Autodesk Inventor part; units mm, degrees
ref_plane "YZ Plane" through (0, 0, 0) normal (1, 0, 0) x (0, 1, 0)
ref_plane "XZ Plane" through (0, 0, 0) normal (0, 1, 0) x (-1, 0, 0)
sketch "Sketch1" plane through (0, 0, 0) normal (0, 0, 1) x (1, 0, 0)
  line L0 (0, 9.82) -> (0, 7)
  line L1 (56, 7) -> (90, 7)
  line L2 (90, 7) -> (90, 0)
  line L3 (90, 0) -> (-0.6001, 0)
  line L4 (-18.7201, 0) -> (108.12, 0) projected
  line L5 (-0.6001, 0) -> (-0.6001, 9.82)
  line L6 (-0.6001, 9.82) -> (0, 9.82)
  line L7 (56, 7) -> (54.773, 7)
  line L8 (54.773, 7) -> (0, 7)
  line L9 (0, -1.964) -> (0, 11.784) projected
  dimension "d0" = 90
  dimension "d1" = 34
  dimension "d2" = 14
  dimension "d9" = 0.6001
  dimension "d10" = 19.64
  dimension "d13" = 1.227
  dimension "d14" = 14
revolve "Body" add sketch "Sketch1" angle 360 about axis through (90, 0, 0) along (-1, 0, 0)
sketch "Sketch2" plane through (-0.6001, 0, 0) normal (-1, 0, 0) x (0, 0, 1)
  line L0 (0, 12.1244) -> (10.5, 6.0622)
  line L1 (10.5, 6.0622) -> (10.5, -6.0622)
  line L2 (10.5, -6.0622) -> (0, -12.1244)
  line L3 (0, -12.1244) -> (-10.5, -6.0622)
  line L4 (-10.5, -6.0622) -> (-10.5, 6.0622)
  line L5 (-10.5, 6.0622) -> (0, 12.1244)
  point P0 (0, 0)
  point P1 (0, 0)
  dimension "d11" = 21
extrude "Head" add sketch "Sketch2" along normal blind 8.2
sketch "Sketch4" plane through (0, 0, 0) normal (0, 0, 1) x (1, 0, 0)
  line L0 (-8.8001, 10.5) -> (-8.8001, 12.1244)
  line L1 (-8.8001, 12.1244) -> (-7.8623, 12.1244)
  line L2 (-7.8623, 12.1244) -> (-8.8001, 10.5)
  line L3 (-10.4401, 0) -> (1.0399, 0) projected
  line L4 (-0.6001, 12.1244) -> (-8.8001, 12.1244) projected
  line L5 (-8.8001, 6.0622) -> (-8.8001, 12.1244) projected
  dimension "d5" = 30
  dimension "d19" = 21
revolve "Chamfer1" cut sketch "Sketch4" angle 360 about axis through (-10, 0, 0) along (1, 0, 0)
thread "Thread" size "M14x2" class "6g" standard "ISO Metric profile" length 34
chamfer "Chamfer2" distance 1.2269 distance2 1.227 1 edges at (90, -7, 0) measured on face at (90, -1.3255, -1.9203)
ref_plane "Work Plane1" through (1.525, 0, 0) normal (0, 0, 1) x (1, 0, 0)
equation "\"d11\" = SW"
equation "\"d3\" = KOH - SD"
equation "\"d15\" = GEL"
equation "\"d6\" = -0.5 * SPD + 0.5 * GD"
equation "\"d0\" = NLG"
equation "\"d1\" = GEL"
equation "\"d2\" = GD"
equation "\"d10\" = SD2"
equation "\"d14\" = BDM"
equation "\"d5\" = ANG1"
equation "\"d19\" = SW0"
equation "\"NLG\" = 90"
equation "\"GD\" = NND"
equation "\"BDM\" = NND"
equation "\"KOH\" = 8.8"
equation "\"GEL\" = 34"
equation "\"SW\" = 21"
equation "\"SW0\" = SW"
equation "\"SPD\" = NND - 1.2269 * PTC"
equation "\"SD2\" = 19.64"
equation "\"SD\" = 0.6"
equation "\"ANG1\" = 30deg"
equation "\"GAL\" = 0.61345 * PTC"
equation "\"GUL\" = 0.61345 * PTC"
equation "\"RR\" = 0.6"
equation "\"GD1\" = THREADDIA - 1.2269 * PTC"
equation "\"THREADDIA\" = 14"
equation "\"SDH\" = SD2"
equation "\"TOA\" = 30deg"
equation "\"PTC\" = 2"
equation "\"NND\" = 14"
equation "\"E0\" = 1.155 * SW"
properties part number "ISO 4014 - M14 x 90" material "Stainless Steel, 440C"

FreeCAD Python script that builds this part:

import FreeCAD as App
import Part
import Sketcher
Q = App.Units.Quantity


def edges_at(feature, points):
    """Names of the edges that pass closest to the given points."""
    edges = feature.Shape.Edges
    near = lambda p: min(range(len(edges)), key=lambda i: edges[i].distToShape(Part.Vertex(*p))[0])
    return sorted({f"Edge{near(p) + 1}" for p in points})

doc = App.newDocument("Part")
body = doc.addObject("PartDesign::Body", "Body")

sketch1 = body.newObject("Sketcher::SketchObject", "Sketch")
sketch1.AttachmentSupport = (doc.getObject("XY_Plane"), [""])
sketch1.MapMode = "FlatFace"
sketch1.addGeometry([
    Part.LineSegment(App.Vector(0, 7, 0), App.Vector(0, 9.82, 0)),
    Part.LineSegment(App.Vector(0, 9.82, 0), App.Vector(-0.6001, 9.82, 0)),
    Part.LineSegment(App.Vector(-0.6001, 9.82, 0), App.Vector(-0.6001, 0, 0)),
    Part.LineSegment(App.Vector(-0.6001, 0, 0), App.Vector(90, 0, 0)),
    Part.LineSegment(App.Vector(90, 0, 0), App.Vector(90, 7, 0)),
    Part.LineSegment(App.Vector(90, 7, 0), App.Vector(0, 7, 0)),
], False)
sketch1.addConstraint([
    Sketcher.Constraint("Coincident", 0, 2, 1, 1),
    Sketcher.Constraint("Coincident", 1, 2, 2, 1),
    Sketcher.Constraint("Coincident", 2, 2, 3, 1),
    Sketcher.Constraint("Coincident", 3, 2, 4, 1),
    Sketcher.Constraint("Coincident", 4, 2, 5, 1),
    Sketcher.Constraint("Coincident", 5, 2, 0, 1),
    Sketcher.Constraint("Vertical", 0),
    Sketcher.Constraint("Horizontal", 1),
    Sketcher.Constraint("Vertical", 2),
    Sketcher.Constraint("Horizontal", 3),
    Sketcher.Constraint("Vertical", 4),
    Sketcher.Constraint("Horizontal", 5),
    Sketcher.Constraint("PointOnObject", 0, 2, -2),
    Sketcher.Constraint("PointOnObject", 2, 2, -1),
    Sketcher.Constraint("DistanceX", 5, 2, 5, 1, Q("90 mm")),
    Sketcher.Constraint("DistanceX", 1, 2, 1, 1, Q("0.6 mm")),
    Sketcher.Constraint("DistanceY", 4, 1, 4, 2, Q("7 mm")),
    Sketcher.Constraint("DistanceY", 0, 1, 0, 2, Q("2.82 mm")),
])
revolution = body.newObject("PartDesign::Revolution", "Revolution")
revolution.Profile = sketch1
revolution.ReferenceAxis = (sketch1, ["H_Axis"])
revolution.Angle = 360

sketch2 = body.newObject("Sketcher::SketchObject", "Sketch001")
sketch2.AttachmentSupport = (doc.getObject("YZ_Plane"), [""])
sketch2.MapMode = "FlatFace"
sketch2.AttachmentOffset = App.Placement(App.Vector(0, 0, -0.6001), App.Rotation())
sketch2.addGeometry([
    Part.LineSegment(App.Vector(6.0622, 10.5, 0), App.Vector(12.1244, 0, 0)),
    Part.LineSegment(App.Vector(12.1244, 0, 0), App.Vector(6.0622, -10.5, 0)),
    Part.LineSegment(App.Vector(6.0622, -10.5, 0), App.Vector(-6.0622, -10.5, 0)),
    Part.LineSegment(App.Vector(-6.0622, -10.5, 0), App.Vector(-12.1244, 0, 0)),
    Part.LineSegment(App.Vector(-12.1244, 0, 0), App.Vector(-6.0622, 10.5, 0)),
    Part.LineSegment(App.Vector(-6.0622, 10.5, 0), App.Vector(6.0622, 10.5, 0)),
], False)
sketch2.addConstraint([
    Sketcher.Constraint("Coincident", 0, 2, 1, 1),
    Sketcher.Constraint("Coincident", 1, 2, 2, 1),
    Sketcher.Constraint("Coincident", 2, 2, 3, 1),
    Sketcher.Constraint("Coincident", 3, 2, 4, 1),
    Sketcher.Constraint("Coincident", 4, 2, 5, 1),
    Sketcher.Constraint("Coincident", 5, 2, 0, 1),
    Sketcher.Constraint("Horizontal", 2),
    Sketcher.Constraint("Horizontal", 5),
    Sketcher.Constraint("Symmetric", 0, 2, 3, 2, -1, 1),
    Sketcher.Constraint("Symmetric", 1, 2, 4, 2, -1, 1),
    Sketcher.Constraint("PointOnObject", 0, 2, -1),
    Sketcher.Constraint("Parallel", 0, 3),
    Sketcher.Constraint("Vertical", 2, 2, 4, 2),
    Sketcher.Constraint("DistanceY", 2, 2, 4, 2, Q("21 mm")),
    Sketcher.Constraint("Angle", 0, Q("-60 deg")),
    Sketcher.Constraint("DistanceX", 2, 2, 2, 1, Q("12.1244 mm")),
])
pad1 = body.newObject("PartDesign::Pad", "Pad")
pad1.Profile = sketch2
pad1.Length = 8.2
pad1.Reversed = True

sketch3 = body.newObject("Sketcher::SketchObject", "Sketch002")
sketch3.AttachmentSupport = (doc.getObject("XY_Plane"), [""])
sketch3.MapMode = "FlatFace"
sketch3.addGeometry([
    Part.LineSegment(App.Vector(-8.8001, 12.1244, 0), App.Vector(-8.8001, 10.5, 0)),
    Part.LineSegment(App.Vector(-8.8001, 10.5, 0), App.Vector(-7.8623, 12.1244, 0)),
    Part.LineSegment(App.Vector(-7.8623, 12.1244, 0), App.Vector(-8.8001, 12.1244, 0)),
], False)
sketch3.addConstraint([
    Sketcher.Constraint("Coincident", 0, 2, 1, 1),
    Sketcher.Constraint("Coincident", 1, 2, 2, 1),
    Sketcher.Constraint("Coincident", 2, 2, 0, 1),
    Sketcher.Constraint("Vertical", 0),
    Sketcher.Constraint("Horizontal", 2),
    Sketcher.Constraint("DistanceX", 0, 2, -1, 1, Q("8.8 mm")),
    Sketcher.Constraint("DistanceY", -1, 1, 0, 2, Q("10.5 mm")),
    Sketcher.Constraint("DistanceX", 2, 2, 2, 1, Q("0.9378 mm")),
    Sketcher.Constraint("DistanceY", 0, 2, 0, 1, Q("1.6244 mm")),
])
groove = body.newObject("PartDesign::Groove", "Groove")
groove.Profile = sketch3
groove.ReferenceAxis = (sketch3, ["H_Axis"])
groove.Angle = 360
doc.recompute()

chamfer = body.newObject("PartDesign::Chamfer", "Chamfer")
chamfer.Base = (groove, edges_at(groove, [(90, -7, 0)]))
chamfer.ChamferType = "Two distances"
chamfer.Size = 1.2269
chamfer.Size2 = 1.227

doc.recompute()
